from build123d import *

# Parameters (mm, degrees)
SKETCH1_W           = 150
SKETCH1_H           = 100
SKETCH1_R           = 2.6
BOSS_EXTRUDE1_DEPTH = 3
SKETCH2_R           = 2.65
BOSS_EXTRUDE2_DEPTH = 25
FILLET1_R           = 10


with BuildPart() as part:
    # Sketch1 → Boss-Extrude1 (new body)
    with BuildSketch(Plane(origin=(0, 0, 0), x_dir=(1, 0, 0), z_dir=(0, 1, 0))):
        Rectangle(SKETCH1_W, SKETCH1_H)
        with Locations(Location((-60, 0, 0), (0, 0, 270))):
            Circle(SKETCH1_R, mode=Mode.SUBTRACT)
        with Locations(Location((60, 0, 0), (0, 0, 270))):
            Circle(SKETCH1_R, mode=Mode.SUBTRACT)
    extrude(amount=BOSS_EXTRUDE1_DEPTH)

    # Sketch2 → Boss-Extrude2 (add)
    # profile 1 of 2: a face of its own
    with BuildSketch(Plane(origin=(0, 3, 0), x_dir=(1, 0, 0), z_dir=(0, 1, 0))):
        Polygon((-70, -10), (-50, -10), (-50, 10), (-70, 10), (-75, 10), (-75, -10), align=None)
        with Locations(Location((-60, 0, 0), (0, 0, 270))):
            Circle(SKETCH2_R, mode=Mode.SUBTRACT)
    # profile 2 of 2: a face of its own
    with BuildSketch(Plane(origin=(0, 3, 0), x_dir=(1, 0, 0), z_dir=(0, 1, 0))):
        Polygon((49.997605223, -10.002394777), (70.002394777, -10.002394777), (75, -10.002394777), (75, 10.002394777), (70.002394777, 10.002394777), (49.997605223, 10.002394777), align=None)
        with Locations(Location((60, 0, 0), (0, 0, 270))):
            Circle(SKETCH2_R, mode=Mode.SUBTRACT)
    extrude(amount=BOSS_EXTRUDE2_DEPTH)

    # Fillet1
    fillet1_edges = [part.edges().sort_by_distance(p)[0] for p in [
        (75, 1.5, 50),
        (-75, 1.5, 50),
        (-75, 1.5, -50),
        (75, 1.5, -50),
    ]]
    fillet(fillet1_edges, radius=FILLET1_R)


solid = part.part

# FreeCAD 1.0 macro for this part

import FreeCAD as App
import Part
import Sketcher
from FreeCAD import Vector


def edges_at(feature, points):
    """Names of the edges that pass closest to the given points."""
    edges = feature.Shape.Edges
    near = lambda p: min(range(len(edges)), key=lambda i: edges[i].distToShape(Part.Vertex(*p))[0])
    return sorted({f"Edge{near(p) + 1}" for p in points})


def add_polygon(sketch, points):
    """Adds a closed chain of lines whose ends are joined by coincident constraints."""
    first, n = sketch.GeometryCount, len(points)
    for a, b in zip(points, points[1:] + points[:1]):
        sketch.addGeometry(Part.LineSegment(App.Vector(*a, 0), App.Vector(*b, 0)), False)
    for i in range(n):
        sketch.addConstraint(Sketcher.Constraint("Coincident", first + i, 2, first + (i + 1) % n, 1))

doc = App.newDocument("Part")
body = doc.addObject("PartDesign::Body", "Body")

# Sketch on XZ plane
sketch1 = body.newObject("Sketcher::SketchObject", "Sketch")
sketch1.AttachmentSupport = (doc.getObject("XZ_Plane"), [""])
sketch1.MapMode = "FlatFace"
add_polygon(sketch1, [(-75, -50), (-75, 50), (75, 50), (75, -50)])  # lines 0-3
sketch1.addGeometry(Part.Circle(Vector(-60, 0, 0), Vector(0, 0, 1), 2.6), False)  # 4
sketch1.addGeometry(Part.Circle(Vector(60, 0, 0), Vector(0, 0, 1), 2.6), False)  # 5
sketch1.addConstraint([
    Sketcher.Constraint("Vertical", 0),
    Sketcher.Constraint("Horizontal", 1),
    Sketcher.Constraint("Vertical", 2),
    Sketcher.Constraint("Horizontal", 3),
    Sketcher.Constraint("Equal", 4, 5),
    Sketcher.Constraint("Symmetric", 4, 3, 5, 3, -1, 1),
    Sketcher.Constraint("Symmetric", 0, 2, 2, 2, -1, 1),
    Sketcher.Constraint("PointOnObject", 4, 3, -1),
    Sketcher.Constraint("Diameter", 4, 5.2),
    Sketcher.Constraint("DistanceX", 1, 1, 1, 2, 150.0),
    Sketcher.Constraint("DistanceY", 0, 1, 0, 2, 100.0),
    Sketcher.Constraint("DistanceX", 4, 3, -1, 1, 60.0),
])
pad1 = body.newObject("PartDesign::Pad", "Pad")
pad1.Profile = sketch1
pad1.Length = 3
pad1.Reversed = True

# Sketch on XZ plane
sketch2 = body.newObject("Sketcher::SketchObject", "Sketch001")
sketch2.AttachmentSupport = (doc.getObject("XZ_Plane"), [""])
sketch2.MapMode = "FlatFace"
sketch2.AttachmentOffset = App.Placement(Vector(0, 0, -3), App.Rotation())
add_polygon(sketch2, [(-50, 10), (-50, -10), (-75, -10), (-75, 10)])  # lines 0-3
sketch2.addGeometry(Part.Circle(Vector(-60, 0, 0), Vector(0, 0, 1), 2.6), False)  # 4
add_polygon(sketch2, [(50, 10), (75, 10), (75, -10), (50, -10)])  # lines 5-8
sketch2.addGeometry(Part.Circle(Vector(60, 0, 0), Vector(0, 0, 1), 2.6), False)  # 9
sketch2.addConstraint([
    Sketcher.Constraint("Vertical", 0),
    Sketcher.Constraint("Horizontal", 1),
    Sketcher.Constraint("Vertical", 2),
    Sketcher.Constraint("Horizontal", 3),
    Sketcher.Constraint("Horizontal", 5),
    Sketcher.Constraint("Vertical", 6),
    Sketcher.Constraint("Horizontal", 7),
    Sketcher.Constraint("Vertical", 8),
    Sketcher.Constraint("Equal", 4, 9),
    Sketcher.Constraint("Symmetric", 4, 3, 9, 3, -1, 1),
    Sketcher.Constraint("PointOnObject", 4, 3, -1),
    Sketcher.Constraint("Diameter", 4, 5.3),
    Sketcher.Constraint("DistanceX", 1, 2, 1, 1, 25.0),
    Sketcher.Constraint("DistanceY", 0, 2, 0, 1, 20.0),
    Sketcher.Constraint("DistanceX", 4, 3, -1, 1, 60.0),
    Sketcher.Constraint("DistanceX", 0, 2, -1, 1, 50.0),
    Sketcher.Constraint("DistanceY", 0, 2, -1, 1, 10.0),
    Sketcher.Constraint("DistanceX", -1, 1, 5, 2, 75.0),
    Sketcher.Constraint("DistanceY", 6, 2, 6, 1, 20.00479),
    Sketcher.Constraint("DistanceX", 5, 1, 5, 2, 25.002395),
    Sketcher.Constraint("DistanceY", -1, 1, 5, 2, 10.002395),
])
pad2 = body.newObject("PartDesign::Pad", "Pad001")
pad2.Profile = sketch2
pad2.Length = 25
pad2.Reversed = True
doc.recompute()

fillet = body.newObject("PartDesign::Fillet", "Fillet")
fillet.Base = (pad2, edges_at(pad2, [
    (75, 1.5, 50),
    (-75, 1.5, 50),
    (-75, 1.5, -50),
    (75, 1.5, -50),
]))
fillet.Radius = 10

doc.recompute()
